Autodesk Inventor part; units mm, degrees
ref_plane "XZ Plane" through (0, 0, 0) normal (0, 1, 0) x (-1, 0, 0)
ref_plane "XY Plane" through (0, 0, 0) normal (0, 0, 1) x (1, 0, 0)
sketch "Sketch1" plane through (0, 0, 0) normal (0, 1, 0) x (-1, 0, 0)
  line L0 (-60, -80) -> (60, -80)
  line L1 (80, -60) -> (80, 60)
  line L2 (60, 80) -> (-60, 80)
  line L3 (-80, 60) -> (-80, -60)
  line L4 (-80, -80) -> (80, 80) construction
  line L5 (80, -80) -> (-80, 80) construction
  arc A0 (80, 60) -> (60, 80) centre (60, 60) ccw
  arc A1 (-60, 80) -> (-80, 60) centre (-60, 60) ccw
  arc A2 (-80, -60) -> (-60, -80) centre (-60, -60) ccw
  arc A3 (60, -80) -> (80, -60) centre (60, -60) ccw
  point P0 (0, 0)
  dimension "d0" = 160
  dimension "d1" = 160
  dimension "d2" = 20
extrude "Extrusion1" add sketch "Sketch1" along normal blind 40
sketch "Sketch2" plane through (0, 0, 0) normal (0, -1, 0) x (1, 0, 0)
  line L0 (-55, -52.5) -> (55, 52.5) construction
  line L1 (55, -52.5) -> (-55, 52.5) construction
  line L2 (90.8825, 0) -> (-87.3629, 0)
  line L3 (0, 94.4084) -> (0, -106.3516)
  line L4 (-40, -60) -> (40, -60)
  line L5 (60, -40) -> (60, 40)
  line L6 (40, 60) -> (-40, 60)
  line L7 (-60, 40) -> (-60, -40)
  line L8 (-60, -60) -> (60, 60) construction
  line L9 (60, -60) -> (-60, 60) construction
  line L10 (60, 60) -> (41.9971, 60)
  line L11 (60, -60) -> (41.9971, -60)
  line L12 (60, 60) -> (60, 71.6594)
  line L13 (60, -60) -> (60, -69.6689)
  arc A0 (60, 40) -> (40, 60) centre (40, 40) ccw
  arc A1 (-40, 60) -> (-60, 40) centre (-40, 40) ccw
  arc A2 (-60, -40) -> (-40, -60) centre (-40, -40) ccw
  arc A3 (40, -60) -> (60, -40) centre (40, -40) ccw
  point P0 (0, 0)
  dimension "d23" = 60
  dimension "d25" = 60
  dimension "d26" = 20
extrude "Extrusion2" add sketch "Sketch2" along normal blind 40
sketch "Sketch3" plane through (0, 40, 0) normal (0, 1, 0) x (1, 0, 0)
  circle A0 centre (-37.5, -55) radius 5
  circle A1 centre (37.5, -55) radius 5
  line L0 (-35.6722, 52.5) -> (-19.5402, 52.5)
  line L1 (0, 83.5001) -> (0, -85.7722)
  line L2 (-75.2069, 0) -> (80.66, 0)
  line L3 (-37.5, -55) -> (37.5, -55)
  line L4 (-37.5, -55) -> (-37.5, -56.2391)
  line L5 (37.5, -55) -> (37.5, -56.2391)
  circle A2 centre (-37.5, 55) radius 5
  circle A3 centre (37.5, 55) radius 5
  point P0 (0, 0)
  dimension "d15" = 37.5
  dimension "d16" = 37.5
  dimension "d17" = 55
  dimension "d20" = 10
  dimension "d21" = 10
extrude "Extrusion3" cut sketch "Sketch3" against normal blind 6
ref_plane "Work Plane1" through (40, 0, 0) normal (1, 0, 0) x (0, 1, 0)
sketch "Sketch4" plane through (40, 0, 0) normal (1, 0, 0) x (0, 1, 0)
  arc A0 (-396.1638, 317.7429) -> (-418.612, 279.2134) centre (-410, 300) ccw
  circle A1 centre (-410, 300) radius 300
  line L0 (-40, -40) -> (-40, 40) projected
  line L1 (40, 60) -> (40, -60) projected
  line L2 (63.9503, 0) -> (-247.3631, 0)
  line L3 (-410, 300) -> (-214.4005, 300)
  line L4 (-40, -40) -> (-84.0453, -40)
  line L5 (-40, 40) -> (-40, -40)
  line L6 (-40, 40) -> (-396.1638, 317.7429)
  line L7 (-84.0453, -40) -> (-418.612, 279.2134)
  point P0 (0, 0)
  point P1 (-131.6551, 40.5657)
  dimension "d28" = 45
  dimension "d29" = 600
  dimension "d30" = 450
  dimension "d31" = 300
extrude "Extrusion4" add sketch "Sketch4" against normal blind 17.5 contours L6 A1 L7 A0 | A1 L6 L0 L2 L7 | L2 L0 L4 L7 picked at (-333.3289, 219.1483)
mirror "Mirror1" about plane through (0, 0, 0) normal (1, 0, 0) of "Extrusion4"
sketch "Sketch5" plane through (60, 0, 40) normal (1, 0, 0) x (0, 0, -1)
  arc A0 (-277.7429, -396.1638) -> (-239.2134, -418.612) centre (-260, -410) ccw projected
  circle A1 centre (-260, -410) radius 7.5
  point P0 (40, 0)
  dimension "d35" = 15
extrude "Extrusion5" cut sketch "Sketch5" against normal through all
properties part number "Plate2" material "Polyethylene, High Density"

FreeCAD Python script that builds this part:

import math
import FreeCAD as App
import Part
import Sketcher
Q = App.Units.Quantity

doc = App.newDocument("Part")
params = doc.addObject("Spreadsheet::Sheet", "Params")
for row, (alias, value) in enumerate([
    ("sketch1_radius", "20 mm"),
    ("sketch1_width", "120 mm"),
    ("pad1_length", "40 mm"),
    ("sketch2_radius", "20 mm"),
    ("pad2_length", "40 mm"),
    ("sketch3_diameter", "10 mm"),
    ("pocket1_length", "6 mm"),
    ("sketch4_radius", "22.5 mm"),
    ("sketch4_height", "80 mm"),
    ("pad3_length", "17.5 mm"),
    ("sketch5_diameter", "15 mm"),
], start=1):
    params.set(f"A{row}", alias)
    params.set(f"B{row}", "=" + value)
    params.setAlias(f"B{row}", alias)

body = doc.addObject("PartDesign::Body", "Body")

# Sketch on XZ plane
sketch1 = body.newObject("Sketcher::SketchObject", "Sketch")
sketch1.AttachmentSupport = (doc.getObject("XZ_Plane"), [""])
sketch1.MapMode = "FlatFace"
sketch1.addGeometry([
    Part.ArcOfCircle(Part.Circle(App.Vector(60, -60, 0), App.Vector(0, 0, 1), 20), math.radians(-90), math.radians(0)),  # 0
    Part.LineSegment(App.Vector(60, -80, 0), App.Vector(-60, -80, 0)),  # 1
    Part.ArcOfCircle(Part.Circle(App.Vector(-60, -60, 0), App.Vector(0, 0, 1), 20), math.radians(180), math.radians(270)),  # 2
    Part.LineSegment(App.Vector(-80, -60, 0), App.Vector(-80, 60, 0)),  # 3
    Part.ArcOfCircle(Part.Circle(App.Vector(-60, 60, 0), App.Vector(0, 0, 1), 20), math.radians(90), math.radians(180)),  # 4
    Part.LineSegment(App.Vector(-60, 80, 0), App.Vector(60, 80, 0)),  # 5
    Part.ArcOfCircle(Part.Circle(App.Vector(60, 60, 0), App.Vector(0, 0, 1), 20), math.radians(0), math.radians(90)),  # 6
    Part.LineSegment(App.Vector(80, 60, 0), App.Vector(80, -60, 0)),  # 7
], False)
sketch1.addConstraint([
    Sketcher.Constraint("Tangent", 0, 1, 1, 1),
    Sketcher.Constraint("Tangent", 1, 2, 2, 2),
    Sketcher.Constraint("Tangent", 2, 1, 3, 1),
    Sketcher.Constraint("Tangent", 3, 2, 4, 2),
    Sketcher.Constraint("Tangent", 4, 1, 5, 1),
    Sketcher.Constraint("Tangent", 5, 2, 6, 2),
    Sketcher.Constraint("Tangent", 6, 1, 7, 1),
    Sketcher.Constraint("Tangent", 7, 2, 0, 2),
    Sketcher.Constraint("Horizontal", 1),
    Sketcher.Constraint("Vertical", 3),
    Sketcher.Constraint("Horizontal", 5),
    Sketcher.Constraint("Vertical", 7),
    Sketcher.Constraint("Equal", 0, 2),
    Sketcher.Constraint("Equal", 2, 4),
    Sketcher.Constraint("Equal", 4, 6),
    Sketcher.Constraint("Symmetric", 0, 3, 4, 3, -1, 1),
    Sketcher.Constraint("Equal", 5, 3),
    Sketcher.Constraint("Radius", 0, Q("20 mm")),
    Sketcher.Constraint("DistanceX", 1, 2, 1, 1, Q("120 mm")),
])
sketch1.setExpression("Constraints[17]", "Params.sketch1_radius")
sketch1.setExpression("Constraints[18]", "Params.sketch1_width")
pad1 = body.newObject("PartDesign::Pad", "Pad")
pad1.Profile = sketch1
pad1.setExpression("Length", "Params.pad1_length")
pad1.Reversed = True

# Sketch on XZ plane
sketch2 = body.newObject("Sketcher::SketchObject", "Sketch001")
sketch2.AttachmentSupport = (doc.getObject("XZ_Plane"), [""])
sketch2.MapMode = "FlatFace"
sketch2.addGeometry([
    Part.LineSegment(App.Vector(60, -40, 0), App.Vector(60, 40, 0)),  # 0
    Part.ArcOfCircle(Part.Circle(App.Vector(40, 40, 0), App.Vector(0, 0, 1), 20), math.radians(0), math.radians(90)),  # 1
    Part.LineSegment(App.Vector(40, 60, 0), App.Vector(-40, 60, 0)),  # 2
    Part.ArcOfCircle(Part.Circle(App.Vector(-40, 40, 0), App.Vector(0, 0, 1), 20), math.radians(90), math.radians(180)),  # 3
    Part.LineSegment(App.Vector(-60, 40, 0), App.Vector(-60, -40, 0)),  # 4
    Part.ArcOfCircle(Part.Circle(App.Vector(-40, -40, 0), App.Vector(0, 0, 1), 20), math.radians(180), math.radians(270)),  # 5
    Part.LineSegment(App.Vector(-40, -60, 0), App.Vector(40, -60, 0)),  # 6
    Part.ArcOfCircle(Part.Circle(App.Vector(40, -40, 0), App.Vector(0, 0, 1), 20), math.radians(-90), math.radians(0)),  # 7
], False)
sketch2.addConstraint([
    Sketcher.Constraint("Tangent", 0, 2, 1, 1),
    Sketcher.Constraint("Tangent", 1, 2, 2, 1),
    Sketcher.Constraint("Tangent", 2, 2, 3, 1),
    Sketcher.Constraint("Tangent", 3, 2, 4, 1),
    Sketcher.Constraint("Tangent", 4, 2, 5, 1),
    Sketcher.Constraint("Tangent", 5, 2, 6, 1),
    Sketcher.Constraint("Tangent", 6, 2, 7, 1),
    Sketcher.Constraint("Tangent", 7, 2, 0, 1),
    Sketcher.Constraint("Vertical", 0),
    Sketcher.Constraint("Horizontal", 2),
    Sketcher.Constraint("Vertical", 4),
    Sketcher.Constraint("Horizontal", 6),
    Sketcher.Constraint("Equal", 1, 3),
    Sketcher.Constraint("Equal", 3, 5),
    Sketcher.Constraint("Equal", 5, 7),
    Sketcher.Constraint("Symmetric", 1, 3, 5, 3, -1, 1),
    Sketcher.Constraint("Equal", 6, 0),
    Sketcher.Constraint("Radius", 1, Q("20 mm")),
    Sketcher.Constraint("DistanceX", -1, 1, 0, 2, Q("60 mm")),
])
sketch2.setExpression("Constraints[17]", "Params.sketch2_radius")
pad2 = body.newObject("PartDesign::Pad", "Pad001")
pad2.Profile = sketch2
pad2.setExpression("Length", "Params.pad2_length")

# Sketch on XZ plane
sketch3 = body.newObject("Sketcher::SketchObject", "Sketch002")
sketch3.AttachmentSupport = (doc.getObject("XZ_Plane"), [""])
sketch3.MapMode = "FlatFace"
sketch3.AttachmentOffset = App.Placement(App.Vector(0, 0, -40), App.Rotation())
sketch3.addGeometry([
    Part.Circle(App.Vector(-38, 55, 0), App.Vector(0, 0, 1), 5),
    Part.Circle(App.Vector(38, 55, 0), App.Vector(0, 0, 1), 5),
    Part.Circle(App.Vector(-38, -55, 0), App.Vector(0, 0, 1), 5),
    Part.Circle(App.Vector(38, -55, 0), App.Vector(0, 0, 1), 5),
], False)
sketch3.addConstraint([
    Sketcher.Constraint("Equal", 0, 1),
    Sketcher.Constraint("Equal", 1, 2),
    Sketcher.Constraint("Equal", 2, 3),
    Sketcher.Constraint("Symmetric", 1, 3, 2, 3, -1, 1),
    Sketcher.Constraint("Symmetric", 0, 3, 3, 3, -1, 1),
    Sketcher.Constraint("Symmetric", 0, 3, 1, 3, -2),
    Sketcher.Constraint("Diameter", 0, Q("10 mm")),
    Sketcher.Constraint("DistanceY", -1, 1, 0, 3, Q("55 mm")),
    Sketcher.Constraint("DistanceX", 0, 3, -1, 1, Q("37.5 mm")),
])
sketch3.setExpression("Constraints[6]", "Params.sketch3_diameter")
pocket1 = body.newObject("PartDesign::Pocket", "Pocket")
pocket1.Profile = sketch3
pocket1.setExpression("Length", "Params.pocket1_length")
pocket1.Reversed = True

# Sketch on YZ plane
sketch4 = body.newObject("Sketcher::SketchObject", "Sketch003")
sketch4.AttachmentSupport = (doc.getObject("YZ_Plane"), [""])
sketch4.MapMode = "FlatFace"
sketch4.AttachmentOffset = App.Placement(App.Vector(0, 0, 40), App.Rotation())
sketch4.addGeometry([
    Part.ArcOfCircle(Part.Circle(App.Vector(-410, 300, 0), App.Vector(0, 0, 1), 23), math.radians(52), math.radians(247)),  # 0
    Part.LineSegment(App.Vector(-419, 279, 0), App.Vector(-84, -40, 0)),  # 1
    Part.LineSegment(App.Vector(-84, -40, 0), App.Vector(-40, -40, 0)),  # 2
    Part.LineSegment(App.Vector(-40, -40, 0), App.Vector(-40, 40, 0)),  # 3
    Part.LineSegment(App.Vector(-40, 40, 0), App.Vector(-396, 318, 0)),  # 4
], False)
sketch4.addConstraint([
    Sketcher.Constraint("Coincident", 0, 2, 1, 1),
    Sketcher.Constraint("Coincident", 1, 2, 2, 1),
    Sketcher.Constraint("Coincident", 2, 2, 3, 1),
    Sketcher.Constraint("Coincident", 3, 2, 4, 1),
    Sketcher.Constraint("Tangent", 4, 2, 0, 1),
    Sketcher.Constraint("Horizontal", 2),
    Sketcher.Constraint("Vertical", 3),
    Sketcher.Constraint("Radius", 0, Q("22.5 mm")),
    Sketcher.Constraint("DistanceY", -1, 1, 0, 3, Q("300 mm")),
    Sketcher.Constraint("DistanceY", 3, 1, 3, 2, Q("80 mm")),
    Sketcher.Constraint("DistanceX", 0, 3, -1, 1, Q("410 mm")),
    Sketcher.Constraint("DistanceY", 1, 2, -1, 1, Q("40 mm")),
    Sketcher.Constraint("DistanceX", 2, 2, -1, 1, Q("40 mm")),
    Sketcher.Constraint("DistanceX", 2, 1, 2, 2, Q("44.0453 mm")),
    Sketcher.Constraint("DistanceX", 0, 2, -1, 1, Q("418.612 mm")),
])
sketch4.setExpression("Constraints[7]", "Params.sketch4_radius")
sketch4.setExpression("Constraints[9]", "Params.sketch4_height")
pad3 = body.newObject("PartDesign::Pad", "Pad002")
pad3.Profile = sketch4
pad3.setExpression("Length", "Params.pad3_length")
pad3.Reversed = True
doc.recompute()

mirrored = body.newObject("PartDesign::Mirrored", "Mirrored")
mirrored.Originals = [pad3]
mirrored.MirrorPlane = (doc.getObject("YZ_Plane"), [""])
body.Tip = mirrored

# Sketch on YZ plane
sketch5 = body.newObject("Sketcher::SketchObject", "Sketch004")
sketch5.AttachmentSupport = (doc.getObject("YZ_Plane"), [""])
sketch5.MapMode = "FlatFace"
sketch5.AttachmentOffset = App.Placement(App.Vector(0, 0, 60), App.Rotation())
sketch5.addGeometry(Part.Circle(App.Vector(-410, 300, 0), App.Vector(0, 0, 1), 8), False)
sketch5.addConstraint([
    Sketcher.Constraint("Diameter", 0, Q("15 mm")),
    Sketcher.Constraint("DistanceX", 0, 3, -1, 1, Q("410 mm")),
    Sketcher.Constraint("DistanceY", -1, 1, 0, 3, Q("300 mm")),
])
sketch5.setExpression("Constraints[0]", "Params.sketch5_diameter")
pocket2 = body.newObject("PartDesign::Pocket", "Pocket001")
pocket2.Profile = sketch5
pocket2.Type = "ThroughAll"

doc.recompute()
